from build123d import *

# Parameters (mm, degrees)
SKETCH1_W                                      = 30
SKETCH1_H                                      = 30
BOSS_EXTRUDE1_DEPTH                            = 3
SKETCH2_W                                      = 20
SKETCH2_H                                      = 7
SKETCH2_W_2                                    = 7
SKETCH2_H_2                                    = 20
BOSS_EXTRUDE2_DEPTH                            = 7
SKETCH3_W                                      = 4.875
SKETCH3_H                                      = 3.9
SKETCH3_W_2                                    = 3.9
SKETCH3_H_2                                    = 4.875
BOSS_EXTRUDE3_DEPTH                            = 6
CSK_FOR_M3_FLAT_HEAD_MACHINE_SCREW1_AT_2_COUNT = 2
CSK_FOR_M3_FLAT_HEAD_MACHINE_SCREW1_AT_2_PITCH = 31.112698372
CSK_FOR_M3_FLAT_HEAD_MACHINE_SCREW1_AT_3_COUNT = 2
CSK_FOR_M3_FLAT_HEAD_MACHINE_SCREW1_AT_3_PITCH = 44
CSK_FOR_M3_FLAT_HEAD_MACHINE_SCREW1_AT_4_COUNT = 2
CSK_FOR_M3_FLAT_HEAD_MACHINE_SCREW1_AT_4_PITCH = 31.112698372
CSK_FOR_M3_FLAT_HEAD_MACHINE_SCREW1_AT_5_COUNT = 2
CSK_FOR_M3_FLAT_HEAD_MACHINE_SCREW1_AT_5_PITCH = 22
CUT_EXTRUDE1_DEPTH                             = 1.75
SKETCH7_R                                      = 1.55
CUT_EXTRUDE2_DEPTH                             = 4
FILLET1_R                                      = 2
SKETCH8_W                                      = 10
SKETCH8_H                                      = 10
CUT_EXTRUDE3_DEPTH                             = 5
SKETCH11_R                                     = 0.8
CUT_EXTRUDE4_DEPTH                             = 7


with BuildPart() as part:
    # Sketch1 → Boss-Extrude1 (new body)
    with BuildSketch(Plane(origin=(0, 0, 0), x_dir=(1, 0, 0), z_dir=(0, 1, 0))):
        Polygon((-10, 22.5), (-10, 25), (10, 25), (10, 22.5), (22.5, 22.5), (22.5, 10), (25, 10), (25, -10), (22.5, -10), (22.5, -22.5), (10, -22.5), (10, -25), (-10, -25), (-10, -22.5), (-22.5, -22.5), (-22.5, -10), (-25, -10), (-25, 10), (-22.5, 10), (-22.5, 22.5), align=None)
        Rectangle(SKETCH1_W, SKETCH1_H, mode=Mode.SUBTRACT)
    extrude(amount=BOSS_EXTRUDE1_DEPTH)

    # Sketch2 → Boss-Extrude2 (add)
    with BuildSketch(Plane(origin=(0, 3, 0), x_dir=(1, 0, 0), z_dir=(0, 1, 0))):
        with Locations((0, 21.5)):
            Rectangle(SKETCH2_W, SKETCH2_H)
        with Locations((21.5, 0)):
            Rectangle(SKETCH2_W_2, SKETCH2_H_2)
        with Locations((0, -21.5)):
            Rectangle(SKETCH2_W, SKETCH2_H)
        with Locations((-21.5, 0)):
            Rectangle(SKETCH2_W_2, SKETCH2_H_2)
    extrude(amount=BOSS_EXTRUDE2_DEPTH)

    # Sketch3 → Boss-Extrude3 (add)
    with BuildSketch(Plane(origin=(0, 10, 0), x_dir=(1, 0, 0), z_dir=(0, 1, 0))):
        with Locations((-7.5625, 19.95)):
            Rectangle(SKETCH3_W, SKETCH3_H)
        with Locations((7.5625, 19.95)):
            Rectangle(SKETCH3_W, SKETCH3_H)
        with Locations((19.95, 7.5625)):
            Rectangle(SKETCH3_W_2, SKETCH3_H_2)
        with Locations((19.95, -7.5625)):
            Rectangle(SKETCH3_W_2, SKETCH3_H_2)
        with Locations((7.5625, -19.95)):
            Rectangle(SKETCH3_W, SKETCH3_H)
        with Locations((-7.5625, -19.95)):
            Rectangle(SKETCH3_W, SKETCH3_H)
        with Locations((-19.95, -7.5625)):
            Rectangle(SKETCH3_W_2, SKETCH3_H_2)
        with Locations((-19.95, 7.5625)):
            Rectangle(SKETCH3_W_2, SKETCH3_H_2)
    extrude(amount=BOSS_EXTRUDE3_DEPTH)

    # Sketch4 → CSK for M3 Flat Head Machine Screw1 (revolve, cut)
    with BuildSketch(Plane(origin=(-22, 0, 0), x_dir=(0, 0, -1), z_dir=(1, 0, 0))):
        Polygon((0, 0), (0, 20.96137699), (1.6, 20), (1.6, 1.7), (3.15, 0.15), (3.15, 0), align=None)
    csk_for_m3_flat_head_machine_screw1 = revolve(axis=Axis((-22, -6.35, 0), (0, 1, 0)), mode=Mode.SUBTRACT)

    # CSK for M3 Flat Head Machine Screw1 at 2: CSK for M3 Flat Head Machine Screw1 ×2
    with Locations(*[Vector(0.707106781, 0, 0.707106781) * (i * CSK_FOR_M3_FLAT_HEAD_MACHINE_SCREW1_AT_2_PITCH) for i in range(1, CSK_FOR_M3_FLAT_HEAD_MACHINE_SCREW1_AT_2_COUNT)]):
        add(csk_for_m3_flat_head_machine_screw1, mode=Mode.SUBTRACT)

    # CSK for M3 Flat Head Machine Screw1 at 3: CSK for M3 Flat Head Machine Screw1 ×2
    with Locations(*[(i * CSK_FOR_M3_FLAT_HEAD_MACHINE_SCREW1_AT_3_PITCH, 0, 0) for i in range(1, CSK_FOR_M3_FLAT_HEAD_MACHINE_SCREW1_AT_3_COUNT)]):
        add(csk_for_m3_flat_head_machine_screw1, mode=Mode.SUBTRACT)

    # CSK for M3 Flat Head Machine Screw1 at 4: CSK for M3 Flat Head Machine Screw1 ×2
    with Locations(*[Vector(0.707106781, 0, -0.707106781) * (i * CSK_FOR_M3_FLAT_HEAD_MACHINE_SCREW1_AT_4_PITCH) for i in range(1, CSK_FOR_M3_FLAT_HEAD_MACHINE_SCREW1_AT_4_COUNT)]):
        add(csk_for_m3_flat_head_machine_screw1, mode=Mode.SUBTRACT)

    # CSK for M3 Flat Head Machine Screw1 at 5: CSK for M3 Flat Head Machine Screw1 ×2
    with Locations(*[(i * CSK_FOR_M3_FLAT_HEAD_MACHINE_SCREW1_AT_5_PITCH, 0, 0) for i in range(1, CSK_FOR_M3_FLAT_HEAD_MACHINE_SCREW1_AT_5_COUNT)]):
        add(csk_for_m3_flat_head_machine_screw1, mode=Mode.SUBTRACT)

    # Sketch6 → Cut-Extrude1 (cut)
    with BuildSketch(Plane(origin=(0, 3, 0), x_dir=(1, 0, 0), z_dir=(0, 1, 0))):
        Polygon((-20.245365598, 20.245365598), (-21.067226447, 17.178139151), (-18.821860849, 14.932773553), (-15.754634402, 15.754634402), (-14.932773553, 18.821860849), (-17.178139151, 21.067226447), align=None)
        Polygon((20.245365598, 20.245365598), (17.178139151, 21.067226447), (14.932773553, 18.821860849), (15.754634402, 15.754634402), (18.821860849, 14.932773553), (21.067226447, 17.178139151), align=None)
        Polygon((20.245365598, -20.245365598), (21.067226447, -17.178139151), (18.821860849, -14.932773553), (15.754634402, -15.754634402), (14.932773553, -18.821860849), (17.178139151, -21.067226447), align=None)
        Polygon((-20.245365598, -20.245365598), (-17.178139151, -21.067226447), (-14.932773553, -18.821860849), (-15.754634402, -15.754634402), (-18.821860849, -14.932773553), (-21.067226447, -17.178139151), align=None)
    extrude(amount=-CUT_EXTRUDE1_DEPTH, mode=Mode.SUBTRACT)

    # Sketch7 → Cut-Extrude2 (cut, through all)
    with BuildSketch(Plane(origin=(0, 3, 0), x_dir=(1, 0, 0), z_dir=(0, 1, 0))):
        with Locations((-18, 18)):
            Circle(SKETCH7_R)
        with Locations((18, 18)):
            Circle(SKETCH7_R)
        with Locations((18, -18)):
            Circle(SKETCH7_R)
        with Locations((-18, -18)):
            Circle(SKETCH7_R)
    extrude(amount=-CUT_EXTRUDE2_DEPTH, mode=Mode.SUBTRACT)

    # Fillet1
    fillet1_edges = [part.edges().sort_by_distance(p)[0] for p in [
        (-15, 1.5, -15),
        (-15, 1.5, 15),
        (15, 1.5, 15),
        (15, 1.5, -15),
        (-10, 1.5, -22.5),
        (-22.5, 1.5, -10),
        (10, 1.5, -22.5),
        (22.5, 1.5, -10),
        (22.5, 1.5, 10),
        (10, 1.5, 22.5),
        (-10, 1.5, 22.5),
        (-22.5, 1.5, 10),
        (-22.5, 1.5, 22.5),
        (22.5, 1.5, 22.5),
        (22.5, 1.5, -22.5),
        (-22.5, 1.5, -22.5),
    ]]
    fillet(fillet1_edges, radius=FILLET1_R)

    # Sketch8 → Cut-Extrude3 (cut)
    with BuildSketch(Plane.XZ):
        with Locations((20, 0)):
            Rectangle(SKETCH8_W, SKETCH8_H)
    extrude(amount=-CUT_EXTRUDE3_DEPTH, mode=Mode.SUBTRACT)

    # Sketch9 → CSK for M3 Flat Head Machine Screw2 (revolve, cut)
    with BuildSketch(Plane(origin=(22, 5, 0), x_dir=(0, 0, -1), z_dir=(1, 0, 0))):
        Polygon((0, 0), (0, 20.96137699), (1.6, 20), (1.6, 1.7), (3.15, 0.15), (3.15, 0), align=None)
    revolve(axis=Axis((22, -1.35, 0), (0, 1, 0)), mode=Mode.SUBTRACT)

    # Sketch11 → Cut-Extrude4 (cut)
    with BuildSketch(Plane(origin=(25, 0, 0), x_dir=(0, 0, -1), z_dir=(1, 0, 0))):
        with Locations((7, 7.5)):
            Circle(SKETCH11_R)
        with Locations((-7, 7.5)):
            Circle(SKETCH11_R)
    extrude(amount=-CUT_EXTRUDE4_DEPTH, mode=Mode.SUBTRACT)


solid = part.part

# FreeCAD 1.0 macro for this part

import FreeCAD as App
import Part
import Sketcher
Q = App.Units.Quantity


def edges_at(feature, points):
    """Names of the edges that pass closest to the given points."""
    edges = feature.Shape.Edges
    near = lambda p: min(range(len(edges)), key=lambda i: edges[i].distToShape(Part.Vertex(*p))[0])
    return sorted({f"Edge{near(p) + 1}" for p in points})

doc = App.newDocument("Part")
body = doc.addObject("PartDesign::Body", "Body")

# Sketch on XZ plane
sketch1 = body.newObject("Sketcher::SketchObject", "Sketch")
sketch1.AttachmentSupport = (doc.getObject("XZ_Plane"), [""])
sketch1.MapMode = "FlatFace"
sketch1.addGeometry(Part.LineSegment(App.Vector(-10, -25, 0), App.Vector(-10, -22.5, 0)), False)
sketch1.addGeometry(Part.LineSegment(App.Vector(-10, -22.5, 0), App.Vector(-22.5, -22.5, 0)), False)
sketch1.addGeometry(Part.LineSegment(App.Vector(-22.5, -22.5, 0), App.Vector(-22.5, -10, 0)), False)
sketch1.addGeometry(Part.LineSegment(App.Vector(-22.5, -10, 0), App.Vector(-25, -10, 0)), False)
sketch1.addGeometry(Part.LineSegment(App.Vector(-25, -10, 0), App.Vector(-25, 10, 0)), False)
sketch1.addGeometry(Part.LineSegment(App.Vector(-25, 10, 0), App.Vector(-22.5, 10, 0)), False)
sketch1.addGeometry(Part.LineSegment(App.Vector(-22.5, 10, 0), App.Vector(-22.5, 22.5, 0)), False)
sketch1.addGeometry(Part.LineSegment(App.Vector(-22.5, 22.5, 0), App.Vector(-10, 22.5, 0)), False)
sketch1.addGeometry(Part.LineSegment(App.Vector(-10, 22.5, 0), App.Vector(-10, 25, 0)), False)
sketch1.addGeometry(Part.LineSegment(App.Vector(-10, 25, 0), App.Vector(10, 25, 0)), False)
sketch1.addGeometry(Part.LineSegment(App.Vector(10, 25, 0), App.Vector(10, 22.5, 0)), False)
sketch1.addGeometry(Part.LineSegment(App.Vector(10, 22.5, 0), App.Vector(22.5, 22.5, 0)), False)
sketch1.addGeometry(Part.LineSegment(App.Vector(22.5, 22.5, 0), App.Vector(22.5, 10, 0)), False)
sketch1.addGeometry(Part.LineSegment(App.Vector(22.5, 10, 0), App.Vector(25, 10, 0)), False)
sketch1.addGeometry(Part.LineSegment(App.Vector(25, 10, 0), App.Vector(25, -10, 0)), False)
sketch1.addGeometry(Part.LineSegment(App.Vector(25, -10, 0), App.Vector(22.5, -10, 0)), False)
sketch1.addGeometry(Part.LineSegment(App.Vector(22.5, -10, 0), App.Vector(22.5, -22.5, 0)), False)
sketch1.addGeometry(Part.LineSegment(App.Vector(22.5, -22.5, 0), App.Vector(10, -22.5, 0)), False)
sketch1.addGeometry(Part.LineSegment(App.Vector(10, -22.5, 0), App.Vector(10, -25, 0)), False)
sketch1.addGeometry(Part.LineSegment(App.Vector(10, -25, 0), App.Vector(-10, -25, 0)), False)
sketch1.addGeometry(Part.LineSegment(App.Vector(-15, 15, 0), App.Vector(-15, -15, 0)), False)
sketch1.addGeometry(Part.LineSegment(App.Vector(-15, -15, 0), App.Vector(15, -15, 0)), False)
sketch1.addGeometry(Part.LineSegment(App.Vector(15, -15, 0), App.Vector(15, 15, 0)), False)
sketch1.addGeometry(Part.LineSegment(App.Vector(15, 15, 0), App.Vector(-15, 15, 0)), False)
sketch1.addConstraint(Sketcher.Constraint("Coincident", 0, 2, 1, 1))
sketch1.addConstraint(Sketcher.Constraint("Coincident", 1, 2, 2, 1))
sketch1.addConstraint(Sketcher.Constraint("Coincident", 2, 2, 3, 1))
sketch1.addConstraint(Sketcher.Constraint("Coincident", 3, 2, 4, 1))
sketch1.addConstraint(Sketcher.Constraint("Coincident", 4, 2, 5, 1))
sketch1.addConstraint(Sketcher.Constraint("Coincident", 5, 2, 6, 1))
sketch1.addConstraint(Sketcher.Constraint("Coincident", 6, 2, 7, 1))
sketch1.addConstraint(Sketcher.Constraint("Coincident", 7, 2, 8, 1))
sketch1.addConstraint(Sketcher.Constraint("Coincident", 8, 2, 9, 1))
sketch1.addConstraint(Sketcher.Constraint("Coincident", 9, 2, 10, 1))
sketch1.addConstraint(Sketcher.Constraint("Coincident", 10, 2, 11, 1))
sketch1.addConstraint(Sketcher.Constraint("Coincident", 11, 2, 12, 1))
sketch1.addConstraint(Sketcher.Constraint("Coincident", 12, 2, 13, 1))
sketch1.addConstraint(Sketcher.Constraint("Coincident", 13, 2, 14, 1))
sketch1.addConstraint(Sketcher.Constraint("Coincident", 14, 2, 15, 1))
sketch1.addConstraint(Sketcher.Constraint("Coincident", 15, 2, 16, 1))
sketch1.addConstraint(Sketcher.Constraint("Coincident", 16, 2, 17, 1))
sketch1.addConstraint(Sketcher.Constraint("Coincident", 17, 2, 18, 1))
sketch1.addConstraint(Sketcher.Constraint("Coincident", 18, 2, 19, 1))
sketch1.addConstraint(Sketcher.Constraint("Coincident", 19, 2, 0, 1))
sketch1.addConstraint(Sketcher.Constraint("Coincident", 20, 2, 21, 1))
sketch1.addConstraint(Sketcher.Constraint("Coincident", 21, 2, 22, 1))
sketch1.addConstraint(Sketcher.Constraint("Coincident", 22, 2, 23, 1))
sketch1.addConstraint(Sketcher.Constraint("Coincident", 23, 2, 20, 1))
sketch1.addConstraint(Sketcher.Constraint("Vertical", 0))
sketch1.addConstraint(Sketcher.Constraint("Horizontal", 1))
sketch1.addConstraint(Sketcher.Constraint("Vertical", 2))
sketch1.addConstraint(Sketcher.Constraint("Horizontal", 3))
sketch1.addConstraint(Sketcher.Constraint("Vertical", 4))
sketch1.addConstraint(Sketcher.Constraint("Horizontal", 5))
sketch1.addConstraint(Sketcher.Constraint("Vertical", 6))
sketch1.addConstraint(Sketcher.Constraint("Horizontal", 7))
sketch1.addConstraint(Sketcher.Constraint("Vertical", 8))
sketch1.addConstraint(Sketcher.Constraint("Horizontal", 9))
sketch1.addConstraint(Sketcher.Constraint("Vertical", 10))
sketch1.addConstraint(Sketcher.Constraint("Horizontal", 11))
sketch1.addConstraint(Sketcher.Constraint("Vertical", 12))
sketch1.addConstraint(Sketcher.Constraint("Horizontal", 13))
sketch1.addConstraint(Sketcher.Constraint("Vertical", 14))
sketch1.addConstraint(Sketcher.Constraint("Horizontal", 15))
sketch1.addConstraint(Sketcher.Constraint("Vertical", 16))
sketch1.addConstraint(Sketcher.Constraint("Horizontal", 17))
sketch1.addConstraint(Sketcher.Constraint("Vertical", 18))
sketch1.addConstraint(Sketcher.Constraint("Horizontal", 19))
sketch1.addConstraint(Sketcher.Constraint("Vertical", 20))
sketch1.addConstraint(Sketcher.Constraint("Horizontal", 21))
sketch1.addConstraint(Sketcher.Constraint("Vertical", 22))
sketch1.addConstraint(Sketcher.Constraint("Horizontal", 23))
sketch1.addConstraint(Sketcher.Constraint("Symmetric", 0, 2, 10, 2, -1, 1))
sketch1.addConstraint(Sketcher.Constraint("Symmetric", 2, 2, 12, 2, -1, 1))
sketch1.addConstraint(Sketcher.Constraint("Symmetric", 4, 2, 14, 2, -1, 1))
sketch1.addConstraint(Sketcher.Constraint("Symmetric", 6, 2, 16, 2, -1, 1))
sketch1.addConstraint(Sketcher.Constraint("Symmetric", 8, 2, 18, 2, -1, 1))
sketch1.addConstraint(Sketcher.Constraint("Symmetric", 20, 2, 22, 2, -1, 1))
sketch1.addConstraint(Sketcher.Constraint("Symmetric", 7, 2, 10, 2, -2))
sketch1.addConstraint(Sketcher.Constraint("Symmetric", 5, 2, 12, 2, -2))
sketch1.addConstraint(Sketcher.Constraint("Equal", 15, 0))
sketch1.addConstraint(Sketcher.Constraint("Equal", 17, 2))
sketch1.addConstraint(Sketcher.Constraint("Equal", 19, 4))
sketch1.addConstraint(Sketcher.Constraint("Equal", 23, 20))
sketch1.addConstraint(Sketcher.Constraint("DistanceX", 9, 1, 9, 2, Q("20 mm")))
sketch1.addConstraint(Sketcher.Constraint("DistanceX", 21, 1, 21, 2, Q("30 mm")))
sketch1.addConstraint(Sketcher.Constraint("DistanceX", 1, 2, 1, 1, Q("12.5 mm")))
sketch1.addConstraint(Sketcher.Constraint("DistanceX", 3, 2, 3, 1, Q("2.5 mm")))
pad1 = body.newObject("PartDesign::Pad", "Pad")
pad1.Profile = sketch1
pad1.Length = 3
pad1.Reversed = True

# Sketch on XZ plane
sketch2 = body.newObject("Sketcher::SketchObject", "Sketch001")
sketch2.AttachmentSupport = (doc.getObject("XZ_Plane"), [""])
sketch2.MapMode = "FlatFace"
sketch2.AttachmentOffset = App.Placement(App.Vector(0, 0, -3), App.Rotation())
sketch2.addGeometry(Part.LineSegment(App.Vector(-10, -25, 0), App.Vector(-10, -18, 0)), False)
sketch2.addGeometry(Part.LineSegment(App.Vector(-10, -18, 0), App.Vector(10, -18, 0)), False)
sketch2.addGeometry(Part.LineSegment(App.Vector(10, -18, 0), App.Vector(10, -25, 0)), False)
sketch2.addGeometry(Part.LineSegment(App.Vector(10, -25, 0), App.Vector(-10, -25, 0)), False)
sketch2.addGeometry(Part.LineSegment(App.Vector(18, -10, 0), App.Vector(18, 10, 0)), False)
sketch2.addGeometry(Part.LineSegment(App.Vector(18, 10, 0), App.Vector(25, 10, 0)), False)
sketch2.addGeometry(Part.LineSegment(App.Vector(25, 10, 0), App.Vector(25, -10, 0)), False)
sketch2.addGeometry(Part.LineSegment(App.Vector(25, -10, 0), App.Vector(18, -10, 0)), False)
sketch2.addGeometry(Part.LineSegment(App.Vector(-10, 18, 0), App.Vector(-10, 25, 0)), False)
sketch2.addGeometry(Part.LineSegment(App.Vector(-10, 25, 0), App.Vector(10, 25, 0)), False)
sketch2.addGeometry(Part.LineSegment(App.Vector(10, 25, 0), App.Vector(10, 18, 0)), False)
sketch2.addGeometry(Part.LineSegment(App.Vector(10, 18, 0), App.Vector(-10, 18, 0)), False)
sketch2.addGeometry(Part.LineSegment(App.Vector(-25, -10, 0), App.Vector(-25, 10, 0)), False)
sketch2.addGeometry(Part.LineSegment(App.Vector(-25, 10, 0), App.Vector(-18, 10, 0)), False)
sketch2.addGeometry(Part.LineSegment(App.Vector(-18, 10, 0), App.Vector(-18, -10, 0)), False)
sketch2.addGeometry(Part.LineSegment(App.Vector(-18, -10, 0), App.Vector(-25, -10, 0)), False)
sketch2.addConstraint(Sketcher.Constraint("Coincident", 0, 2, 1, 1))
sketch2.addConstraint(Sketcher.Constraint("Coincident", 1, 2, 2, 1))
sketch2.addConstraint(Sketcher.Constraint("Coincident", 2, 2, 3, 1))
sketch2.addConstraint(Sketcher.Constraint("Coincident", 3, 2, 0, 1))
sketch2.addConstraint(Sketcher.Constraint("Coincident", 4, 2, 5, 1))
sketch2.addConstraint(Sketcher.Constraint("Coincident", 5, 2, 6, 1))
sketch2.addConstraint(Sketcher.Constraint("Coincident", 6, 2, 7, 1))
sketch2.addConstraint(Sketcher.Constraint("Coincident", 7, 2, 4, 1))
sketch2.addConstraint(Sketcher.Constraint("Coincident", 8, 2, 9, 1))
sketch2.addConstraint(Sketcher.Constraint("Coincident", 9, 2, 10, 1))
sketch2.addConstraint(Sketcher.Constraint("Coincident", 10, 2, 11, 1))
sketch2.addConstraint(Sketcher.Constraint("Coincident", 11, 2, 8, 1))
sketch2.addConstraint(Sketcher.Constraint("Coincident", 12, 2, 13, 1))
sketch2.addConstraint(Sketcher.Constraint("Coincident", 13, 2, 14, 1))
sketch2.addConstraint(Sketcher.Constraint("Coincident", 14, 2, 15, 1))
sketch2.addConstraint(Sketcher.Constraint("Coincident", 15, 2, 12, 1))
sketch2.addConstraint(Sketcher.Constraint("Vertical", 0))
sketch2.addConstraint(Sketcher.Constraint("Horizontal", 1))
sketch2.addConstraint(Sketcher.Constraint("Vertical", 2))
sketch2.addConstraint(Sketcher.Constraint("Horizontal", 3))
sketch2.addConstraint(Sketcher.Constraint("Vertical", 4))
sketch2.addConstraint(Sketcher.Constraint("Horizontal", 5))
sketch2.addConstraint(Sketcher.Constraint("Vertical", 6))
sketch2.addConstraint(Sketcher.Constraint("Horizontal", 7))
sketch2.addConstraint(Sketcher.Constraint("Vertical", 8))
sketch2.addConstraint(Sketcher.Constraint("Horizontal", 9))
sketch2.addConstraint(Sketcher.Constraint("Vertical", 10))
sketch2.addConstraint(Sketcher.Constraint("Horizontal", 11))
sketch2.addConstraint(Sketcher.Constraint("Vertical", 12))
sketch2.addConstraint(Sketcher.Constraint("Horizontal", 13))
sketch2.addConstraint(Sketcher.Constraint("Vertical", 14))
sketch2.addConstraint(Sketcher.Constraint("Horizontal", 15))
sketch2.addConstraint(Sketcher.Constraint("Symmetric", 2, 2, 8, 2, -1, 1))
sketch2.addConstraint(Sketcher.Constraint("Symmetric", 0, 2, 10, 2, -1, 1))
sketch2.addConstraint(Sketcher.Constraint("Symmetric", 6, 2, 12, 2, -1, 1))
sketch2.addConstraint(Sketcher.Constraint("Symmetric", 4, 2, 14, 2, -1, 1))
sketch2.addConstraint(Sketcher.Constraint("Horizontal", 5, 2, 12, 2))
sketch2.addConstraint(Sketcher.Constraint("Vertical", 3, 2, 8, 2))
sketch2.addConstraint(Sketcher.Constraint("Equal", 15, 0))
sketch2.addConstraint(Sketcher.Constraint("Equal", 11, 4))
sketch2.addConstraint(Sketcher.Constraint("DistanceX", 1, 1, 1, 2, Q("20 mm")))
sketch2.addConstraint(Sketcher.Constraint("DistanceX", 5, 1, 5, 2, Q("7 mm")))
sketch2.addConstraint(Sketcher.Constraint("DistanceY", 0, 2, -1, 1, Q("18 mm")))
sketch2.addConstraint(Sketcher.Constraint("DistanceX", -1, 1, 4, 2, Q("18 mm")))
pad2 = body.newObject("PartDesign::Pad", "Pad001")
pad2.Profile = sketch2
pad2.Length = 7
pad2.Reversed = True

# Sketch on XZ plane
sketch3 = body.newObject("Sketcher::SketchObject", "Sketch002")
sketch3.AttachmentSupport = (doc.getObject("XZ_Plane"), [""])
sketch3.MapMode = "FlatFace"
sketch3.AttachmentOffset = App.Placement(App.Vector(0, 0, -10), App.Rotation())
sketch3.addGeometry(Part.LineSegment(App.Vector(-10, -21.9, 0), App.Vector(-10, -18, 0)), False)
sketch3.addGeometry(Part.LineSegment(App.Vector(-10, -18, 0), App.Vector(-5.1, -18, 0)), False)
sketch3.addGeometry(Part.LineSegment(App.Vector(-5.1, -18, 0), App.Vector(-5.1, -21.9, 0)), False)
sketch3.addGeometry(Part.LineSegment(App.Vector(-5.1, -21.9, 0), App.Vector(-10, -21.9, 0)), False)
sketch3.addGeometry(Part.LineSegment(App.Vector(5.1, -21.9, 0), App.Vector(5.1, -18, 0)), False)
sketch3.addGeometry(Part.LineSegment(App.Vector(5.1, -18, 0), App.Vector(10, -18, 0)), False)
sketch3.addGeometry(Part.LineSegment(App.Vector(10, -18, 0), App.Vector(10, -21.9, 0)), False)
sketch3.addGeometry(Part.LineSegment(App.Vector(10, -21.9, 0), App.Vector(5.1, -21.9, 0)), False)
sketch3.addGeometry(Part.LineSegment(App.Vector(18, -10, 0), App.Vector(18, -5.1, 0)), False)
sketch3.addGeometry(Part.LineSegment(App.Vector(18, -5.1, 0), App.Vector(21.9, -5.1, 0)), False)
sketch3.addGeometry(Part.LineSegment(App.Vector(21.9, -5.1, 0), App.Vector(21.9, -10, 0)), False)
sketch3.addGeometry(Part.LineSegment(App.Vector(21.9, -10, 0), App.Vector(18, -10, 0)), False)
sketch3.addGeometry(Part.LineSegment(App.Vector(18, 5.1, 0), App.Vector(18, 10, 0)), False)
sketch3.addGeometry(Part.LineSegment(App.Vector(18, 10, 0), App.Vector(21.9, 10, 0)), False)
sketch3.addGeometry(Part.LineSegment(App.Vector(21.9, 10, 0), App.Vector(21.9, 5.1, 0)), False)
sketch3.addGeometry(Part.LineSegment(App.Vector(21.9, 5.1, 0), App.Vector(18, 5.1, 0)), False)
sketch3.addGeometry(Part.LineSegment(App.Vector(5.1, 18, 0), App.Vector(5.1, 21.9, 0)), False)
sketch3.addGeometry(Part.LineSegment(App.Vector(5.1, 21.9, 0), App.Vector(10, 21.9, 0)), False)
sketch3.addGeometry(Part.LineSegment(App.Vector(10, 21.9, 0), App.Vector(10, 18, 0)), False)
sketch3.addGeometry(Part.LineSegment(App.Vector(10, 18, 0), App.Vector(5.1, 18, 0)), False)
sketch3.addGeometry(Part.LineSegment(App.Vector(-10, 18, 0), App.Vector(-10, 21.9, 0)), False)
sketch3.addGeometry(Part.LineSegment(App.Vector(-10, 21.9, 0), App.Vector(-5.1, 21.9, 0)), False)
sketch3.addGeometry(Part.LineSegment(App.Vector(-5.1, 21.9, 0), App.Vector(-5.1, 18, 0)), False)
sketch3.addGeometry(Part.LineSegment(App.Vector(-5.1, 18, 0), App.Vector(-10, 18, 0)), False)
sketch3.addGeometry(Part.LineSegment(App.Vector(-21.9, 5.1, 0), App.Vector(-21.9, 10, 0)), False)
sketch3.addGeometry(Part.LineSegment(App.Vector(-21.9, 10, 0), App.Vector(-18, 10, 0)), False)
sketch3.addGeometry(Part.LineSegment(App.Vector(-18, 10, 0), App.Vector(-18, 5.1, 0)), False)
sketch3.addGeometry(Part.LineSegment(App.Vector(-18, 5.1, 0), App.Vector(-21.9, 5.1, 0)), False)
sketch3.addGeometry(Part.LineSegment(App.Vector(-21.9, -10, 0), App.Vector(-21.9, -5.1, 0)), False)
sketch3.addGeometry(Part.LineSegment(App.Vector(-21.9, -5.1, 0), App.Vector(-18, -5.1, 0)), False)
sketch3.addGeometry(Part.LineSegment(App.Vector(-18, -5.1, 0), App.Vector(-18, -10, 0)), False)
sketch3.addGeometry(Part.LineSegment(App.Vector(-18, -10, 0), App.Vector(-21.9, -10, 0)), False)
sketch3.addConstraint(Sketcher.Constraint("Coincident", 0, 2, 1, 1))
sketch3.addConstraint(Sketcher.Constraint("Coincident", 1, 2, 2, 1))
sketch3.addConstraint(Sketcher.Constraint("Coincident", 2, 2, 3, 1))
sketch3.addConstraint(Sketcher.Constraint("Coincident", 3, 2, 0, 1))
sketch3.addConstraint(Sketcher.Constraint("Coincident", 4, 2, 5, 1))
sketch3.addConstraint(Sketcher.Constraint("Coincident", 5, 2, 6, 1))
sketch3.addConstraint(Sketcher.Constraint("Coincident", 6, 2, 7, 1))
sketch3.addConstraint(Sketcher.Constraint("Coincident", 7, 2, 4, 1))
sketch3.addConstraint(Sketcher.Constraint("Coincident", 8, 2, 9, 1))
sketch3.addConstraint(Sketcher.Constraint("Coincident", 9, 2, 10, 1))
sketch3.addConstraint(Sketcher.Constraint("Coincident", 10, 2, 11, 1))
sketch3.addConstraint(Sketcher.Constraint("Coincident", 11, 2, 8, 1))
sketch3.addConstraint(Sketcher.Constraint("Coincident", 12, 2, 13, 1))
sketch3.addConstraint(Sketcher.Constraint("Coincident", 13, 2, 14, 1))
sketch3.addConstraint(Sketcher.Constraint("Coincident", 14, 2, 15, 1))
sketch3.addConstraint(Sketcher.Constraint("Coincident", 15, 2, 12, 1))
sketch3.addConstraint(Sketcher.Constraint("Coincident", 16, 2, 17, 1))
sketch3.addConstraint(Sketcher.Constraint("Coincident", 17, 2, 18, 1))
sketch3.addConstraint(Sketcher.Constraint("Coincident", 18, 2, 19, 1))
sketch3.addConstraint(Sketcher.Constraint("Coincident", 19, 2, 16, 1))
sketch3.addConstraint(Sketcher.Constraint("Coincident", 20, 2, 21, 1))
sketch3.addConstraint(Sketcher.Constraint("Coincident", 21, 2, 22, 1))
sketch3.addConstraint(Sketcher.Constraint("Coincident", 22, 2, 23, 1))
sketch3.addConstraint(Sketcher.Constraint("Coincident", 23, 2, 20, 1))
sketch3.addConstraint(Sketcher.Constraint("Coincident", 24, 2, 25, 1))
sketch3.addConstraint(Sketcher.Constraint("Coincident", 25, 2, 26, 1))
sketch3.addConstraint(Sketcher.Constraint("Coincident", 26, 2, 27, 1))
sketch3.addConstraint(Sketcher.Constraint("Coincident", 27, 2, 24, 1))
sketch3.addConstraint(Sketcher.Constraint("Coincident", 28, 2, 29, 1))
sketch3.addConstraint(Sketcher.Constraint("Coincident", 29, 2, 30, 1))
sketch3.addConstraint(Sketcher.Constraint("Coincident", 30, 2, 31, 1))
sketch3.addConstraint(Sketcher.Constraint("Coincident", 31, 2, 28, 1))
sketch3.addConstraint(Sketcher.Constraint("Vertical", 0))
sketch3.addConstraint(Sketcher.Constraint("Horizontal", 1))
sketch3.addConstraint(Sketcher.Constraint("Vertical", 2))
sketch3.addConstraint(Sketcher.Constraint("Horizontal", 3))
sketch3.addConstraint(Sketcher.Constraint("Vertical", 4))
sketch3.addConstraint(Sketcher.Constraint("Horizontal", 5))
sketch3.addConstraint(Sketcher.Constraint("Vertical", 6))
sketch3.addConstraint(Sketcher.Constraint("Horizontal", 7))
sketch3.addConstraint(Sketcher.Constraint("Vertical", 8))
sketch3.addConstraint(Sketcher.Constraint("Horizontal", 9))
sketch3.addConstraint(Sketcher.Constraint("Vertical", 10))
sketch3.addConstraint(Sketcher.Constraint("Horizontal", 11))
sketch3.addConstraint(Sketcher.Constraint("Vertical", 12))
sketch3.addConstraint(Sketcher.Constraint("Horizontal", 13))
sketch3.addConstraint(Sketcher.Constraint("Vertical", 14))
sketch3.addConstraint(Sketcher.Constraint("Horizontal", 15))
sketch3.addConstraint(Sketcher.Constraint("Vertical", 16))
sketch3.addConstraint(Sketcher.Constraint("Horizontal", 17))
sketch3.addConstraint(Sketcher.Constraint("Vertical", 18))
sketch3.addConstraint(Sketcher.Constraint("Horizontal", 19))
sketch3.addConstraint(Sketcher.Constraint("Vertical", 20))
sketch3.addConstraint(Sketcher.Constraint("Horizontal", 21))
sketch3.addConstraint(Sketcher.Constraint("Vertical", 22))
sketch3.addConstraint(Sketcher.Constraint("Horizontal", 23))
sketch3.addConstraint(Sketcher.Constraint("Vertical", 24))
sketch3.addConstraint(Sketcher.Constraint("Horizontal", 25))
sketch3.addConstraint(Sketcher.Constraint("Vertical", 26))
sketch3.addConstraint(Sketcher.Constraint("Horizontal", 27))
sketch3.addConstraint(Sketcher.Constraint("Vertical", 28))
sketch3.addConstraint(Sketcher.Constraint("Horizontal", 29))
sketch3.addConstraint(Sketcher.Constraint("Vertical", 30))
sketch3.addConstraint(Sketcher.Constraint("Horizontal", 31))
sketch3.addConstraint(Sketcher.Constraint("Symmetric", 2, 2, 16, 2, -1, 1))
sketch3.addConstraint(Sketcher.Constraint("Symmetric", 0, 2, 18, 2, -1, 1))
sketch3.addConstraint(Sketcher.Constraint("Symmetric", 6, 2, 20, 2, -1, 1))
sketch3.addConstraint(Sketcher.Constraint("Symmetric", 4, 2, 22, 2, -1, 1))
sketch3.addConstraint(Sketcher.Constraint("Symmetric", 10, 2, 24, 2, -1, 1))
sketch3.addConstraint(Sketcher.Constraint("Symmetric", 8, 2, 26, 2, -1, 1))
sketch3.addConstraint(Sketcher.Constraint("Symmetric", 14, 2, 28, 2, -1, 1))
sketch3.addConstraint(Sketcher.Constraint("Symmetric", 12, 2, 30, 2, -1, 1))
sketch3.addConstraint(Sketcher.Constraint("Symmetric", 1, 2, 4, 2, -2))
sketch3.addConstraint(Sketcher.Constraint("Symmetric", 3, 2, 6, 2, -2))
sketch3.addConstraint(Sketcher.Constraint("Symmetric", 13, 2, 24, 2, -2))
sketch3.addConstraint(Sketcher.Constraint("Symmetric", 15, 2, 26, 2, -2))
sketch3.addConstraint(Sketcher.Constraint("Equal", 31, 0))
sketch3.addConstraint(Sketcher.Constraint("Equal", 23, 8))
sketch3.addConstraint(Sketcher.Constraint("DistanceX", 9, 1, 9, 2, Q("3.9 mm")))
sketch3.addConstraint(Sketcher.Constraint("DistanceX", 0, 2, -1, 1, Q("10 mm")))
sketch3.addConstraint(Sketcher.Constraint("DistanceY", 0, 2, -1, 1, Q("18 mm")))
sketch3.addConstraint(Sketcher.Constraint("DistanceX", -1, 1, 8, 2, Q("18 mm")))
sketch3.addConstraint(Sketcher.Constraint("DistanceY", 10, 2, -1, 1, Q("10 mm")))
sketch3.addConstraint(Sketcher.Constraint("DistanceX", 1, 1, 1, 2, Q("4.875 mm")))
pad3 = body.newObject("PartDesign::Pad", "Pad002")
pad3.Profile = sketch3
pad3.Length = 6
pad3.Reversed = True

# Sketch on YZ plane
sketch4 = body.newObject("Sketcher::SketchObject", "Sketch003")
sketch4.AttachmentSupport = (doc.getObject("YZ_Plane"), [""])
sketch4.MapMode = "FlatFace"
sketch4.AttachmentOffset = App.Placement(App.Vector(0, 0, -22), App.Rotation())
sketch4.addGeometry(Part.LineSegment(App.Vector(20.96, 0, 0), App.Vector(0, 0, 0)), False)
sketch4.addGeometry(Part.LineSegment(App.Vector(0, 0, 0), App.Vector(0, -3.15, 0)), False)
sketch4.addGeometry(Part.LineSegment(App.Vector(0, -3.15, 0), App.Vector(0.15, -3.15, 0)), False)
sketch4.addGeometry(Part.LineSegment(App.Vector(0.15, -3.15, 0), App.Vector(1.7, -1.6, 0)), False)
sketch4.addGeometry(Part.LineSegment(App.Vector(1.7, -1.6, 0), App.Vector(20, -1.6, 0)), False)
sketch4.addGeometry(Part.LineSegment(App.Vector(20, -1.6, 0), App.Vector(20.96, 0, 0)), False)
sketch4.addConstraint(Sketcher.Constraint("Coincident", 0, 2, 1, 1))
sketch4.addConstraint(Sketcher.Constraint("Coincident", 1, 2, 2, 1))
sketch4.addConstraint(Sketcher.Constraint("Coincident", 2, 2, 3, 1))
sketch4.addConstraint(Sketcher.Constraint("Coincident", 3, 2, 4, 1))
sketch4.addConstraint(Sketcher.Constraint("Coincident", 4, 2, 5, 1))
sketch4.addConstraint(Sketcher.Constraint("Coincident", 5, 2, 0, 1))
sketch4.addConstraint(Sketcher.Constraint("Horizontal", 0))
sketch4.addConstraint(Sketcher.Constraint("Vertical", 1))
sketch4.addConstraint(Sketcher.Constraint("Horizontal", 2))
sketch4.addConstraint(Sketcher.Constraint("Horizontal", 4))
sketch4.addConstraint(Sketcher.Constraint("Coincident", 0, 2, -1, 1))
sketch4.addConstraint(Sketcher.Constraint("Angle", 3, Q("45 deg")))
sketch4.addConstraint(Sketcher.Constraint("Angle", 5, Q("59 deg")))
sketch4.addConstraint(Sketcher.Constraint("DistanceX", 4, 1, 4, 2, Q("18.3 mm")))
sketch4.addConstraint(Sketcher.Constraint("DistanceX", -1, 1, 4, 2, Q("20 mm")))
sketch4.addConstraint(Sketcher.Constraint("DistanceX", 2, 1, 2, 2, Q("0.15 mm")))
sketch4.addConstraint(Sketcher.Constraint("DistanceY", 1, 2, 1, 1, Q("3.15 mm")))
groove = body.newObject("PartDesign::Groove", "Groove")
groove.Profile = sketch4
groove.ReferenceAxis = (sketch4, ["H_Axis"])
groove.Angle = 360
doc.recompute()

datumline = body.newObject("PartDesign::Line", "DatumLine")
datumline.Placement = App.Placement(App.Vector(0, 0, 0), App.Rotation(App.Vector(0, 0, 1), App.Vector(0.707106781, 0, 0.707106781)))
linearpattern = body.newObject("PartDesign::LinearPattern", "LinearPattern")
linearpattern.Originals = [groove]
linearpattern.Direction = (datumline, [""])
linearpattern.Mode = "offset"
linearpattern.Offset = 31.112698
linearpattern.Occurrences = 2
body.Tip = linearpattern
doc.recompute()

linearpattern2 = body.newObject("PartDesign::LinearPattern", "LinearPattern001")
linearpattern2.Originals = [groove]
linearpattern2.Direction = (doc.getObject("X_Axis"), [""])
linearpattern2.Mode = "offset"
linearpattern2.Offset = 44
linearpattern2.Occurrences = 2
body.Tip = linearpattern2
doc.recompute()

datumline2 = body.newObject("PartDesign::Line", "DatumLine001")
datumline2.Placement = App.Placement(App.Vector(0, 0, 0), App.Rotation(App.Vector(0, 0, 1), App.Vector(0.707106781, 0, -0.707106781)))
linearpattern3 = body.newObject("PartDesign::LinearPattern", "LinearPattern002")
linearpattern3.Originals = [groove]
linearpattern3.Direction = (datumline2, [""])
linearpattern3.Mode = "offset"
linearpattern3.Offset = 31.112698
linearpattern3.Occurrences = 2
body.Tip = linearpattern3
doc.recompute()

linearpattern4 = body.newObject("PartDesign::LinearPattern", "LinearPattern003")
linearpattern4.Originals = [groove]
linearpattern4.Direction = (doc.getObject("X_Axis"), [""])
linearpattern4.Mode = "offset"
linearpattern4.Offset = 22
linearpattern4.Occurrences = 2
body.Tip = linearpattern4

# Sketch on XZ plane
sketch5 = body.newObject("Sketcher::SketchObject", "Sketch004")
sketch5.AttachmentSupport = (doc.getObject("XZ_Plane"), [""])
sketch5.MapMode = "FlatFace"
sketch5.AttachmentOffset = App.Placement(App.Vector(0, 0, -3), App.Rotation())
sketch5.addGeometry(Part.LineSegment(App.Vector(-20.2, -20.2, 0), App.Vector(-21.1, -17.2, 0)), False)
sketch5.addGeometry(Part.LineSegment(App.Vector(-21.1, -17.2, 0), App.Vector(-18.8, -14.9, 0)), False)
sketch5.addGeometry(Part.LineSegment(App.Vector(-18.8, -14.9, 0), App.Vector(-15.8, -15.8, 0)), False)
sketch5.addGeometry(Part.LineSegment(App.Vector(-15.8, -15.8, 0), App.Vector(-14.9, -18.8, 0)), False)
sketch5.addGeometry(Part.LineSegment(App.Vector(-14.9, -18.8, 0), App.Vector(-17.2, -21.1, 0)), False)
sketch5.addGeometry(Part.LineSegment(App.Vector(-17.2, -21.1, 0), App.Vector(-20.2, -20.2, 0)), False)
sketch5.addGeometry(Part.LineSegment(App.Vector(20.2, -20.2, 0), App.Vector(17.2, -21.1, 0)), False)
sketch5.addGeometry(Part.LineSegment(App.Vector(17.2, -21.1, 0), App.Vector(14.9, -18.8, 0)), False)
sketch5.addGeometry(Part.LineSegment(App.Vector(14.9, -18.8, 0), App.Vector(15.8, -15.8, 0)), False)
sketch5.addGeometry(Part.LineSegment(App.Vector(15.8, -15.8, 0), App.Vector(18.8, -14.9, 0)), False)
sketch5.addGeometry(Part.LineSegment(App.Vector(18.8, -14.9, 0), App.Vector(21.1, -17.2, 0)), False)
sketch5.addGeometry(Part.LineSegment(App.Vector(21.1, -17.2, 0), App.Vector(20.2, -20.2, 0)), False)
sketch5.addGeometry(Part.LineSegment(App.Vector(20.2, 20.2, 0), App.Vector(21.1, 17.2, 0)), False)
sketch5.addGeometry(Part.LineSegment(App.Vector(21.1, 17.2, 0), App.Vector(18.8, 14.9, 0)), False)
sketch5.addGeometry(Part.LineSegment(App.Vector(18.8, 14.9, 0), App.Vector(15.8, 15.8, 0)), False)
sketch5.addGeometry(Part.LineSegment(App.Vector(15.8, 15.8, 0), App.Vector(14.9, 18.8, 0)), False)
sketch5.addGeometry(Part.LineSegment(App.Vector(14.9, 18.8, 0), App.Vector(17.2, 21.1, 0)), False)
sketch5.addGeometry(Part.LineSegment(App.Vector(17.2, 21.1, 0), App.Vector(20.2, 20.2, 0)), False)
sketch5.addGeometry(Part.LineSegment(App.Vector(-20.2, 20.2, 0), App.Vector(-17.2, 21.1, 0)), False)
sketch5.addGeometry(Part.LineSegment(App.Vector(-17.2, 21.1, 0), App.Vector(-14.9, 18.8, 0)), False)
sketch5.addGeometry(Part.LineSegment(App.Vector(-14.9, 18.8, 0), App.Vector(-15.8, 15.8, 0)), False)
sketch5.addGeometry(Part.LineSegment(App.Vector(-15.8, 15.8, 0), App.Vector(-18.8, 14.9, 0)), False)
sketch5.addGeometry(Part.LineSegment(App.Vector(-18.8, 14.9, 0), App.Vector(-21.1, 17.2, 0)), False)
sketch5.addGeometry(Part.LineSegment(App.Vector(-21.1, 17.2, 0), App.Vector(-20.2, 20.2, 0)), False)
sketch5.addConstraint(Sketcher.Constraint("Coincident", 0, 2, 1, 1))
sketch5.addConstraint(Sketcher.Constraint("Coincident", 1, 2, 2, 1))
sketch5.addConstraint(Sketcher.Constraint("Coincident", 2, 2, 3, 1))
sketch5.addConstraint(Sketcher.Constraint("Coincident", 3, 2, 4, 1))
sketch5.addConstraint(Sketcher.Constraint("Coincident", 4, 2, 5, 1))
sketch5.addConstraint(Sketcher.Constraint("Coincident", 5, 2, 0, 1))
sketch5.addConstraint(Sketcher.Constraint("Coincident", 6, 2, 7, 1))
sketch5.addConstraint(Sketcher.Constraint("Coincident", 7, 2, 8, 1))
sketch5.addConstraint(Sketcher.Constraint("Coincident", 8, 2, 9, 1))
sketch5.addConstraint(Sketcher.Constraint("Coincident", 9, 2, 10, 1))
sketch5.addConstraint(Sketcher.Constraint("Coincident", 10, 2, 11, 1))
sketch5.addConstraint(Sketcher.Constraint("Coincident", 11, 2, 6, 1))
sketch5.addConstraint(Sketcher.Constraint("Coincident", 12, 2, 13, 1))
sketch5.addConstraint(Sketcher.Constraint("Coincident", 13, 2, 14, 1))
sketch5.addConstraint(Sketcher.Constraint("Coincident", 14, 2, 15, 1))
sketch5.addConstraint(Sketcher.Constraint("Coincident", 15, 2, 16, 1))
sketch5.addConstraint(Sketcher.Constraint("Coincident", 16, 2, 17, 1))
sketch5.addConstraint(Sketcher.Constraint("Coincident", 17, 2, 12, 1))
sketch5.addConstraint(Sketcher.Constraint("Coincident", 18, 2, 19, 1))
sketch5.addConstraint(Sketcher.Constraint("Coincident", 19, 2, 20, 1))
sketch5.addConstraint(Sketcher.Constraint("Coincident", 20, 2, 21, 1))
sketch5.addConstraint(Sketcher.Constraint("Coincident", 21, 2, 22, 1))
sketch5.addConstraint(Sketcher.Constraint("Coincident", 22, 2, 23, 1))
sketch5.addConstraint(Sketcher.Constraint("Coincident", 23, 2, 18, 1))
sketch5.addConstraint(Sketcher.Constraint("Symmetric", 0, 2, 12, 2, -1, 1))
sketch5.addConstraint(Sketcher.Constraint("Symmetric", 1, 2, 13, 2, -1, 1))
sketch5.addConstraint(Sketcher.Constraint("Symmetric", 2, 2, 14, 2, -1, 1))
sketch5.addConstraint(Sketcher.Constraint("Symmetric", 3, 2, 15, 2, -1, 1))
sketch5.addConstraint(Sketcher.Constraint("Symmetric", 4, 2, 16, 2, -1, 1))
sketch5.addConstraint(Sketcher.Constraint("Symmetric", 5, 2, 17, 2, -1, 1))
sketch5.addConstraint(Sketcher.Constraint("Symmetric", 6, 2, 18, 2, -1, 1))
sketch5.addConstraint(Sketcher.Constraint("Symmetric", 7, 2, 19, 2, -1, 1))
sketch5.addConstraint(Sketcher.Constraint("Symmetric", 8, 2, 20, 2, -1, 1))
sketch5.addConstraint(Sketcher.Constraint("Symmetric", 9, 2, 21, 2, -1, 1))
sketch5.addConstraint(Sketcher.Constraint("Symmetric", 10, 2, 22, 2, -1, 1))
sketch5.addConstraint(Sketcher.Constraint("Symmetric", 11, 2, 23, 2, -1, 1))
sketch5.addConstraint(Sketcher.Constraint("Symmetric", 4, 2, 6, 2, -2))
sketch5.addConstraint(Sketcher.Constraint("Symmetric", 3, 2, 7, 2, -2))
sketch5.addConstraint(Sketcher.Constraint("Symmetric", 2, 2, 8, 2, -2))
sketch5.addConstraint(Sketcher.Constraint("Symmetric", 1, 2, 9, 2, -2))
sketch5.addConstraint(Sketcher.Constraint("Symmetric", 0, 2, 10, 2, -2))
sketch5.addConstraint(Sketcher.Constraint("Symmetric", 5, 2, 11, 2, -2))
sketch5.addConstraint(Sketcher.Constraint("Parallel", 0, 3))
sketch5.addConstraint(Sketcher.Constraint("Parallel", 1, 4))
sketch5.addConstraint(Sketcher.Constraint("Parallel", 2, 5))
sketch5.addConstraint(Sketcher.Constraint("Perpendicular", 3, 6))
sketch5.addConstraint(Sketcher.Constraint("Perpendicular", 4, 7))
sketch5.addConstraint(Sketcher.Constraint("Equal", 0, 1))
sketch5.addConstraint(Sketcher.Constraint("Equal", 1, 2))
sketch5.addConstraint(Sketcher.Constraint("Equal", 2, 3))
sketch5.addConstraint(Sketcher.Constraint("Angle", 0, Q("105 deg")))
sketch5.addConstraint(Sketcher.Constraint("DistanceX", 1, 2, 6, 2, Q("36 mm")))
sketch5.addConstraint(Sketcher.Constraint("DistanceY", 7, 2, 12, 2, Q("36 mm")))
sketch5.addConstraint(Sketcher.Constraint("DistanceY", 0, 2, -1, 1, Q("17.178139 mm")))
pocket1 = body.newObject("PartDesign::Pocket", "Pocket")
pocket1.Profile = sketch5
pocket1.Length = 1.75
pocket1.Reversed = True

# Sketch on XZ plane
sketch6 = body.newObject("Sketcher::SketchObject", "Sketch005")
sketch6.AttachmentSupport = (doc.getObject("XZ_Plane"), [""])
sketch6.MapMode = "FlatFace"
sketch6.AttachmentOffset = App.Placement(App.Vector(0, 0, -3), App.Rotation())
sketch6.addGeometry(Part.Circle(App.Vector(-18, -18, 0), App.Vector(0, 0, 1), 1.6), False)
sketch6.addGeometry(Part.Circle(App.Vector(18, -18, 0), App.Vector(0, 0, 1), 1.6), False)
sketch6.addGeometry(Part.Circle(App.Vector(18, 18, 0), App.Vector(0, 0, 1), 1.6), False)
sketch6.addGeometry(Part.Circle(App.Vector(-18, 18, 0), App.Vector(0, 0, 1), 1.6), False)
sketch6.addConstraint(Sketcher.Constraint("Equal", 0, 1))
sketch6.addConstraint(Sketcher.Constraint("Equal", 1, 2))
sketch6.addConstraint(Sketcher.Constraint("Equal", 2, 3))
sketch6.addConstraint(Sketcher.Constraint("Symmetric", 0, 3, 2, 3, -1, 1))
sketch6.addConstraint(Sketcher.Constraint("Symmetric", 1, 3, 3, 3, -1, 1))
sketch6.addConstraint(Sketcher.Constraint("Symmetric", 0, 3, 1, 3, -2))
sketch6.addConstraint(Sketcher.Constraint("Diameter", 0, Q("3.1 mm")))
sketch6.addConstraint(Sketcher.Constraint("DistanceX", 0, 3, -1, 1, Q("18 mm")))
sketch6.addConstraint(Sketcher.Constraint("DistanceY", 0, 3, -1, 1, Q("18 mm")))
pocket2 = body.newObject("PartDesign::Pocket", "Pocket001")
pocket2.Profile = sketch6
pocket2.Type = "ThroughAll"
pocket2.Reversed = True
doc.recompute()

fillet = body.newObject("PartDesign::Fillet", "Fillet")
fillet.Base = (pocket2, edges_at(pocket2, [
    (-15, 1.5, -15),
    (-15, 1.5, 15),
    (15, 1.5, 15),
    (15, 1.5, -15),
    (-10, 1.5, -22.5),
    (-22.5, 1.5, -10),
    (10, 1.5, -22.5),
    (22.5, 1.5, -10),
    (22.5, 1.5, 10),
    (10, 1.5, 22.5),
    (-10, 1.5, 22.5),
    (-22.5, 1.5, 10),
    (-22.5, 1.5, 22.5),
    (22.5, 1.5, 22.5),
    (22.5, 1.5, -22.5),
    (-22.5, 1.5, -22.5),
]))
fillet.Radius = 2

# Sketch on XZ plane
sketch7 = body.newObject("Sketcher::SketchObject", "Sketch006")
sketch7.AttachmentSupport = (doc.getObject("XZ_Plane"), [""])
sketch7.MapMode = "FlatFace"
sketch7.addGeometry(Part.LineSegment(App.Vector(15, 5, 0), App.Vector(15, -5, 0)), False)
sketch7.addGeometry(Part.LineSegment(App.Vector(15, -5, 0), App.Vector(25, -5, 0)), False)
sketch7.addGeometry(Part.LineSegment(App.Vector(25, -5, 0), App.Vector(25, 5, 0)), False)
sketch7.addGeometry(Part.LineSegment(App.Vector(25, 5, 0), App.Vector(15, 5, 0)), False)
sketch7.addConstraint(Sketcher.Constraint("Coincident", 0, 2, 1, 1))
sketch7.addConstraint(Sketcher.Constraint("Coincident", 1, 2, 2, 1))
sketch7.addConstraint(Sketcher.Constraint("Coincident", 2, 2, 3, 1))
sketch7.addConstraint(Sketcher.Constraint("Coincident", 3, 2, 0, 1))
sketch7.addConstraint(Sketcher.Constraint("Vertical", 0))
sketch7.addConstraint(Sketcher.Constraint("Horizontal", 1))
sketch7.addConstraint(Sketcher.Constraint("Vertical", 2))
sketch7.addConstraint(Sketcher.Constraint("Horizontal", 3))
sketch7.addConstraint(Sketcher.Constraint("Equal", 3, 0))
sketch7.addConstraint(Sketcher.Constraint("DistanceX", 1, 1, 1, 2, Q("10 mm")))
sketch7.addConstraint(Sketcher.Constraint("DistanceX", -1, 1, 0, 2, Q("15 mm")))
sketch7.addConstraint(Sketcher.Constraint("DistanceY", 0, 2, -1, 1, Q("5 mm")))
pocket3 = body.newObject("PartDesign::Pocket", "Pocket002")
pocket3.Profile = sketch7
pocket3.Length = 5

# Sketch on YZ plane
sketch8 = body.newObject("Sketcher::SketchObject", "Sketch007")
sketch8.AttachmentSupport = (doc.getObject("YZ_Plane"), [""])
sketch8.MapMode = "FlatFace"
sketch8.AttachmentOffset = App.Placement(App.Vector(0, 0, 22), App.Rotation())
sketch8.addGeometry(Part.LineSegment(App.Vector(25.96, 0, 0), App.Vector(5, 0, 0)), False)
sketch8.addGeometry(Part.LineSegment(App.Vector(5, 0, 0), App.Vector(5, -3.15, 0)), False)
sketch8.addGeometry(Part.LineSegment(App.Vector(5, -3.15, 0), App.Vector(5.15, -3.15, 0)), False)
sketch8.addGeometry(Part.LineSegment(App.Vector(5.15, -3.15, 0), App.Vector(6.7, -1.6, 0)), False)
sketch8.addGeometry(Part.LineSegment(App.Vector(6.7, -1.6, 0), App.Vector(25, -1.6, 0)), False)
sketch8.addGeometry(Part.LineSegment(App.Vector(25, -1.6, 0), App.Vector(25.96, 0, 0)), False)
sketch8.addConstraint(Sketcher.Constraint("Coincident", 0, 2, 1, 1))
sketch8.addConstraint(Sketcher.Constraint("Coincident", 1, 2, 2, 1))
sketch8.addConstraint(Sketcher.Constraint("Coincident", 2, 2, 3, 1))
sketch8.addConstraint(Sketcher.Constraint("Coincident", 3, 2, 4, 1))
sketch8.addConstraint(Sketcher.Constraint("Coincident", 4, 2, 5, 1))
sketch8.addConstraint(Sketcher.Constraint("Coincident", 5, 2, 0, 1))
sketch8.addConstraint(Sketcher.Constraint("Horizontal", 0))
sketch8.addConstraint(Sketcher.Constraint("Vertical", 1))
sketch8.addConstraint(Sketcher.Constraint("Horizontal", 2))
sketch8.addConstraint(Sketcher.Constraint("Horizontal", 4))
sketch8.addConstraint(Sketcher.Constraint("PointOnObject", 0, 2, -1))
sketch8.addConstraint(Sketcher.Constraint("Angle", 3, Q("45 deg")))
sketch8.addConstraint(Sketcher.Constraint("Angle", 5, Q("59 deg")))
sketch8.addConstraint(Sketcher.Constraint("DistanceX", 4, 1, 4, 2, Q("18.3 mm")))
sketch8.addConstraint(Sketcher.Constraint("DistanceX", -1, 1, 0, 2, Q("5 mm")))
sketch8.addConstraint(Sketcher.Constraint("DistanceX", -1, 1, 4, 2, Q("25 mm")))
sketch8.addConstraint(Sketcher.Constraint("DistanceX", 2, 1, 2, 2, Q("0.15 mm")))
sketch8.addConstraint(Sketcher.Constraint("DistanceY", 1, 2, 1, 1, Q("3.15 mm")))
groove2 = body.newObject("PartDesign::Groove", "Groove001")
groove2.Profile = sketch8
groove2.ReferenceAxis = (sketch8, ["H_Axis"])
groove2.Angle = 360

# Sketch on YZ plane
sketch9 = body.newObject("Sketcher::SketchObject", "Sketch008")
sketch9.AttachmentSupport = (doc.getObject("YZ_Plane"), [""])
sketch9.MapMode = "FlatFace"
sketch9.AttachmentOffset = App.Placement(App.Vector(0, 0, 25), App.Rotation())
sketch9.addGeometry(Part.Circle(App.Vector(7.5, -7, 0), App.Vector(0, 0, 1), 0.8), False)
sketch9.addGeometry(Part.Circle(App.Vector(7.5, 7, 0), App.Vector(0, 0, 1), 0.8), False)
sketch9.addConstraint(Sketcher.Constraint("Equal", 0, 1))
sketch9.addConstraint(Sketcher.Constraint("Symmetric", 0, 3, 1, 3, -1))
sketch9.addConstraint(Sketcher.Constraint("Diameter", 0, Q("1.6 mm")))
sketch9.addConstraint(Sketcher.Constraint("DistanceY", 0, 3, -1, 1, Q("7 mm")))
sketch9.addConstraint(Sketcher.Constraint("DistanceX", -1, 1, 0, 3, Q("7.5 mm")))
pocket4 = body.newObject("PartDesign::Pocket", "Pocket003")
pocket4.Profile = sketch9
pocket4.Length = 7

doc.recompute()
